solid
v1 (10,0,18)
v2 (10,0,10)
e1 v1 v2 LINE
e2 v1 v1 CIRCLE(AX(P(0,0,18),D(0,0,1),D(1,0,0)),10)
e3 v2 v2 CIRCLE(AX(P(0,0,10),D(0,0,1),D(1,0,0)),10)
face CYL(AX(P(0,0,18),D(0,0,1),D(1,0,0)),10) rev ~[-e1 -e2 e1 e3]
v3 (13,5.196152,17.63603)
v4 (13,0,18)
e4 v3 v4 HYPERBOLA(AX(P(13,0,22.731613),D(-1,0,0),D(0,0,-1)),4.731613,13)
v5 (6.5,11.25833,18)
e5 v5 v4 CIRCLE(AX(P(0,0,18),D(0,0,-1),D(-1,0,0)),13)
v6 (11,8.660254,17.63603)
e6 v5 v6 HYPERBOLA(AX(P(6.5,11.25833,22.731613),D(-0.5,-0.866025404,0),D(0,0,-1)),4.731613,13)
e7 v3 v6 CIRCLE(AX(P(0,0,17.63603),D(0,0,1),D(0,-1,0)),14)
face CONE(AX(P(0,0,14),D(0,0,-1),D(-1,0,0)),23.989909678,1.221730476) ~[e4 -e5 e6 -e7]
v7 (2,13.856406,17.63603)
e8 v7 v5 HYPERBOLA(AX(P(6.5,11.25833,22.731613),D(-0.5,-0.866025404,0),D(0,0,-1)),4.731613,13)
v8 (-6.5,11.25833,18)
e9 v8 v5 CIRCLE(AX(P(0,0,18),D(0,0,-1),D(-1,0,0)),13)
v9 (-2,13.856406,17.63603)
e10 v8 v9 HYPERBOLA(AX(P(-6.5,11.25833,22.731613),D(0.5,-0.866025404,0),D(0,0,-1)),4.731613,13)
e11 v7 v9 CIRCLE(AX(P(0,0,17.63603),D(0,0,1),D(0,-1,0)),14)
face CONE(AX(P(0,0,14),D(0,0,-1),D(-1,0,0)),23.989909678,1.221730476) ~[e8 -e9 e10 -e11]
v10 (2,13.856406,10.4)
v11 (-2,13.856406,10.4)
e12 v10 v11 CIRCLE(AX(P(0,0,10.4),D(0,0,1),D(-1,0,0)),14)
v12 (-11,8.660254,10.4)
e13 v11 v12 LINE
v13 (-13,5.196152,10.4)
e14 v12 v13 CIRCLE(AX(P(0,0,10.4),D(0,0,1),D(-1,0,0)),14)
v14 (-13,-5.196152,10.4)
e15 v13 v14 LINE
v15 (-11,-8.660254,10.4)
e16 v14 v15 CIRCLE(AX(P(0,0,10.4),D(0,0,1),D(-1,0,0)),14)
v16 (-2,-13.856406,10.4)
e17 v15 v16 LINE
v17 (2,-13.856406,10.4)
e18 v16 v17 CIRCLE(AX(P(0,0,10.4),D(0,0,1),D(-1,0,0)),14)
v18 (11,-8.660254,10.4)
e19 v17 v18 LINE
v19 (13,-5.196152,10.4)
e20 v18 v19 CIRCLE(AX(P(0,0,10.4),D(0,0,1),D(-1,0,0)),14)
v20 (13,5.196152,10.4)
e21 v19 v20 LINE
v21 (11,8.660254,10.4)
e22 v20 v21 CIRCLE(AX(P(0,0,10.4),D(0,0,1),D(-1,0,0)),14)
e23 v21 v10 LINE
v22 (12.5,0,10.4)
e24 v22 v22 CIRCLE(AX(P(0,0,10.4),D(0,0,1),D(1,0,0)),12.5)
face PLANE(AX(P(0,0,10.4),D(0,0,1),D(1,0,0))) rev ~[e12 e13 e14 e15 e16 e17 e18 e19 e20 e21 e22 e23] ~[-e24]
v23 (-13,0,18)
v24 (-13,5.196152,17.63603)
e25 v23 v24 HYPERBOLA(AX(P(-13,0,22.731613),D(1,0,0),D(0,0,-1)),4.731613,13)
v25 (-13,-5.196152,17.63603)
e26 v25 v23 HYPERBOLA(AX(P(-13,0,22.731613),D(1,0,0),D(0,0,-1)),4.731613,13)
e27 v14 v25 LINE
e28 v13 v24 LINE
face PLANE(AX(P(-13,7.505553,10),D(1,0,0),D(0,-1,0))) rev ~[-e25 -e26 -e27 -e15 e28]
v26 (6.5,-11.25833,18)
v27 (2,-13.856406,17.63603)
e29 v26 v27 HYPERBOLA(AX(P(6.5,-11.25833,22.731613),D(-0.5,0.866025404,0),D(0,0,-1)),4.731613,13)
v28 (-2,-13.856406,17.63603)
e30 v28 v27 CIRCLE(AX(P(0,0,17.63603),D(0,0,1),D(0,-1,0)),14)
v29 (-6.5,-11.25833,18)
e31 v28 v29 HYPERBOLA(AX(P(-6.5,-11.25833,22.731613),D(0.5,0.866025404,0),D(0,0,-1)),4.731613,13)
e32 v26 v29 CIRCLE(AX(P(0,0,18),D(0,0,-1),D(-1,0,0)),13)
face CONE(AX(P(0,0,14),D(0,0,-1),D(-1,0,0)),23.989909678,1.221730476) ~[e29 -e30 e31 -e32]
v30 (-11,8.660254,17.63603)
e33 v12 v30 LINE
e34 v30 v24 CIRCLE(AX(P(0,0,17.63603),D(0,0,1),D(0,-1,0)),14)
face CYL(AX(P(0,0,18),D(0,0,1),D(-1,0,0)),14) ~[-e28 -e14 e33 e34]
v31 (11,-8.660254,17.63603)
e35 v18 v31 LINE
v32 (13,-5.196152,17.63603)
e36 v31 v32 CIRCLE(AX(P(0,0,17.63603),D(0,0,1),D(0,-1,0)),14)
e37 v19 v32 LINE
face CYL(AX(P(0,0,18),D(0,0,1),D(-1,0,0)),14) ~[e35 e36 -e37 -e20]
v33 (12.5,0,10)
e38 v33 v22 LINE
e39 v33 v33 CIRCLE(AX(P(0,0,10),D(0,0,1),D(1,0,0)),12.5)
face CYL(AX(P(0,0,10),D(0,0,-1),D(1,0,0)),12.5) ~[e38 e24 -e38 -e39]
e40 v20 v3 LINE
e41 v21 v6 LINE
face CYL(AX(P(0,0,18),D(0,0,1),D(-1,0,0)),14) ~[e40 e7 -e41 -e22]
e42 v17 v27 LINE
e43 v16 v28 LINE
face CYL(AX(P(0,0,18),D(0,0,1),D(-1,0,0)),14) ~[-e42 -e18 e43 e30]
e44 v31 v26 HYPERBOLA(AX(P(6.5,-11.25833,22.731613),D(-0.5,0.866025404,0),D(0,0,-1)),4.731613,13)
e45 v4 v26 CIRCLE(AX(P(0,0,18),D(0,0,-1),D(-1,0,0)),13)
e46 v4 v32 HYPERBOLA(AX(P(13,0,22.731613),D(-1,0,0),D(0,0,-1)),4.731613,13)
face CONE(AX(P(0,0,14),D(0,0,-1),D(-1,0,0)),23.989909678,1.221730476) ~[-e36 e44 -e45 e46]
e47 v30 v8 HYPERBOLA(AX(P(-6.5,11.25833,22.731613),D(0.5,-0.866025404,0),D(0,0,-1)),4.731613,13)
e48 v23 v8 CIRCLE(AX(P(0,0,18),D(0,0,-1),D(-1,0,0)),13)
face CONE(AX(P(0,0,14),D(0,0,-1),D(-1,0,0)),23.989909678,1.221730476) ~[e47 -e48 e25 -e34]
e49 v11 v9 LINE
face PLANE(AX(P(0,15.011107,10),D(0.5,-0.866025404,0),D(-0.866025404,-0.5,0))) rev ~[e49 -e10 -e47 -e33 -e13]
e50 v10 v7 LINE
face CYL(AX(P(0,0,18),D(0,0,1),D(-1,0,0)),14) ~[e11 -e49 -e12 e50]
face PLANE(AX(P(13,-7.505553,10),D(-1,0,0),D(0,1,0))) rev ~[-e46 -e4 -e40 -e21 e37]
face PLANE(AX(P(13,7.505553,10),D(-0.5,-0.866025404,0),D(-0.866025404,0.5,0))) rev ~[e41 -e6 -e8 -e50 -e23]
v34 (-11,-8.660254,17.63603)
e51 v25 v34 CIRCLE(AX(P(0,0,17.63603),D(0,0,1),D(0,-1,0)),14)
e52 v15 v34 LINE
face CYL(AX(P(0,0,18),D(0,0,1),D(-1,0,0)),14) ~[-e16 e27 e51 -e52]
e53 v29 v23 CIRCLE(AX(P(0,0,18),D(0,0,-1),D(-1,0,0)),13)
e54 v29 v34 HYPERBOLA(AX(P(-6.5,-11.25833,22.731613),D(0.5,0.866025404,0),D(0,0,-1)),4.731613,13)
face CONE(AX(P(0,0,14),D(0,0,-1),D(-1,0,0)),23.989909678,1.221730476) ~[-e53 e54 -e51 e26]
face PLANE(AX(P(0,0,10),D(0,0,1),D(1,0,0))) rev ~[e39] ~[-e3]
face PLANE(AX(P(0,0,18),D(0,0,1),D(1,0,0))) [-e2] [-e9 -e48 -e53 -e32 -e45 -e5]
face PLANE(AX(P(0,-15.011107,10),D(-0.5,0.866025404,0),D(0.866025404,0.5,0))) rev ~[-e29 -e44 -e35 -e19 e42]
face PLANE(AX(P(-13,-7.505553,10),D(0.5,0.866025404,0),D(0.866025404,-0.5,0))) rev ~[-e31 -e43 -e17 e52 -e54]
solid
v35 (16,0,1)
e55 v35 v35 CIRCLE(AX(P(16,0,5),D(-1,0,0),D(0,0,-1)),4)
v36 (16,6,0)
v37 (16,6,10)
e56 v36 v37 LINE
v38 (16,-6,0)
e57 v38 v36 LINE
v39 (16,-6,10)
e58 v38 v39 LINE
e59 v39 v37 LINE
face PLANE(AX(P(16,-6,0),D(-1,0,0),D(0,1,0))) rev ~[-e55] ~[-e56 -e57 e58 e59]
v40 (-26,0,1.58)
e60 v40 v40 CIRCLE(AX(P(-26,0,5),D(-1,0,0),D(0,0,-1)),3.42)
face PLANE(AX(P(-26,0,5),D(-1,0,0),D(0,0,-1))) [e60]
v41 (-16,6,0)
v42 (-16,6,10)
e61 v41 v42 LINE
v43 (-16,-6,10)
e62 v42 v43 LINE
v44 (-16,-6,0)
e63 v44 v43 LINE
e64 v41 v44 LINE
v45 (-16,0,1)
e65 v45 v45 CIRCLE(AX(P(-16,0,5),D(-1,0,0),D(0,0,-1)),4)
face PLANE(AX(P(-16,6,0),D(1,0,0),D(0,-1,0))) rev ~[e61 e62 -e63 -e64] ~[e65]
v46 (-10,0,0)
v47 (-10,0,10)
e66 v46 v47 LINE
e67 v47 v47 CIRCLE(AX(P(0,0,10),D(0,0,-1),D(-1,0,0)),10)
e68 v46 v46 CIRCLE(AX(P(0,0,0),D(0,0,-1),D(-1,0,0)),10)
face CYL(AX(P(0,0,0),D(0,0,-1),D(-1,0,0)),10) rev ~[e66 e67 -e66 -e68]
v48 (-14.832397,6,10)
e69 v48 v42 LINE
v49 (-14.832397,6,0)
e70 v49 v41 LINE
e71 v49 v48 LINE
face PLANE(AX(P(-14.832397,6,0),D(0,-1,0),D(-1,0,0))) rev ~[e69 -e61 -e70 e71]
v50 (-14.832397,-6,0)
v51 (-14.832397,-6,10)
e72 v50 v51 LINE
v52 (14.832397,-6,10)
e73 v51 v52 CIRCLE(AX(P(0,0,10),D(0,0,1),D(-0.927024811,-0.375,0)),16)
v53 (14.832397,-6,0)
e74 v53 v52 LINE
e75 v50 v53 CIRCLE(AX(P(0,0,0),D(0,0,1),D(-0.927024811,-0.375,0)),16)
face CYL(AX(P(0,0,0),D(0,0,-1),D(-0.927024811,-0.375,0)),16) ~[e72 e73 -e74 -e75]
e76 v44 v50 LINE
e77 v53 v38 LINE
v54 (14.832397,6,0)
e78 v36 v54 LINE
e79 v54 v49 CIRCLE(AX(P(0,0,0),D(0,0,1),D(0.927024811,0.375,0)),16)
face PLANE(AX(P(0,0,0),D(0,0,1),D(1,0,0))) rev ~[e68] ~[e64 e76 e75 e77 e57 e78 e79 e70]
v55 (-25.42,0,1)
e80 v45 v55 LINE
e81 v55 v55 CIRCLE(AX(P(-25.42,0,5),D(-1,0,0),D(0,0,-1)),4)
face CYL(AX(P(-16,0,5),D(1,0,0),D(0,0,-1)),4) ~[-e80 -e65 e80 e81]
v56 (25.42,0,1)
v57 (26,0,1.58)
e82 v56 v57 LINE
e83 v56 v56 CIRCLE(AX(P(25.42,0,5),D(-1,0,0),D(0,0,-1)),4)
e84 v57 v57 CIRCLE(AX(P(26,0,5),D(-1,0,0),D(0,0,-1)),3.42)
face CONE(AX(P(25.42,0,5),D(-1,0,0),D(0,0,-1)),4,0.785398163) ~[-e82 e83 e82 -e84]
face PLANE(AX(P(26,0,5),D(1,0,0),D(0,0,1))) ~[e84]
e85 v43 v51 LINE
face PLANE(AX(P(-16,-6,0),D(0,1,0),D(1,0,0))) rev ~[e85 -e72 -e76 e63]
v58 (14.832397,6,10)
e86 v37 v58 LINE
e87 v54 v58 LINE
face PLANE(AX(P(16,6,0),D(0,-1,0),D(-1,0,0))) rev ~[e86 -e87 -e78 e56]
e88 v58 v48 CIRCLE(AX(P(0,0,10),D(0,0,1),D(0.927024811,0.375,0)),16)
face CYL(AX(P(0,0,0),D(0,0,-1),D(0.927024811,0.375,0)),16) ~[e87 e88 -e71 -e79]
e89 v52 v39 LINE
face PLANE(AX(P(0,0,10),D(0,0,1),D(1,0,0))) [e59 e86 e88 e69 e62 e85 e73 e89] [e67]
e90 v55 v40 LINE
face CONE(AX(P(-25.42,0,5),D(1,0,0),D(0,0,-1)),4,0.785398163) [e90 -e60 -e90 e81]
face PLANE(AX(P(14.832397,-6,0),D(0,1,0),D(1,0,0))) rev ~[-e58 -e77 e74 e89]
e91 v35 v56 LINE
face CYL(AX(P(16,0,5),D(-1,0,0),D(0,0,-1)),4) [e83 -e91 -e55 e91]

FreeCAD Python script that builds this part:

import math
import FreeCAD as App
import Part
import Sketcher
from FreeCAD import Vector
Q = App.Units.Quantity


def edges_at(feature, points):
    """Names of the edges that pass closest to the given points."""
    edges = feature.Shape.Edges
    near = lambda p: min(range(len(edges)), key=lambda i: edges[i].distToShape(Part.Vertex(*p))[0])
    return sorted({f"Edge{near(p) + 1}" for p in points})


def add_polygon(sketch, points):
    """Adds a closed chain of lines whose ends are joined by coincident constraints."""
    first, n = sketch.GeometryCount, len(points)
    for a, b in zip(points, points[1:] + points[:1]):
        sketch.addGeometry(Part.LineSegment(App.Vector(*a, 0), App.Vector(*b, 0)), False)
    for i in range(n):
        sketch.addConstraint(Sketcher.Constraint("Coincident", first + i, 2, first + (i + 1) % n, 1))

doc = App.newDocument("Part")
params = doc.addObject("Spreadsheet::Sheet", "Params")
for row, (alias, value) in enumerate([
    ("sketch1_radius", "16 mm"),
    ("sketch1_height", "12 mm"),
    ("pad1_length", "10 mm"),
    ("sketch2_diameter", "8 mm"),
    ("pad2_length", "10 mm"),
    ("sketch3_diameter", "20 mm"),
    ("chamfer_size", "0.58 mm"),
    ("pad3_length", "8 mm"),
    ("sketch5_height", "4 mm"),
    ("groove_angle", "360 deg"),
    ("sketch6_diameter", "25 mm"),
    ("pocket2_length", "0.4 mm"),
    ("sketch7_diameter", "28 mm"),
    ("pocket3_length", "8 mm"),
    ("sketch8_diameter", "20 mm"),
], start=1):
    params.set(f"A{row}", alias)
    params.set(f"B{row}", "=" + value)
    params.setAlias(f"B{row}", alias)

body = doc.addObject("PartDesign::Body", "Body")

sketch1 = body.newObject("Sketcher::SketchObject", "Sketch")
sketch1.AttachmentSupport = (doc.getObject("XY_Plane"), [""])
sketch1.MapMode = "FlatFace"
sketch1.addGeometry(Part.LineSegment(Vector(-16, 6, 0), Vector(-16, -6, 0)), False)
sketch1.addGeometry(Part.LineSegment(Vector(-16, -6, 0), Vector(-14.8, -6, 0)), False)
sketch1.addGeometry(Part.ArcOfCircle(Part.Circle(Vector(0, 0, 0), Vector(0, 0, 1), 16), math.radians(-158), math.radians(-22)), False)
sketch1.addGeometry(Part.LineSegment(Vector(14.8, -6, 0), Vector(16, -6, 0)), False)
sketch1.addGeometry(Part.LineSegment(Vector(16, -6, 0), Vector(16, 6, 0)), False)
sketch1.addGeometry(Part.LineSegment(Vector(16, 6, 0), Vector(14.8, 6, 0)), False)
sketch1.addGeometry(Part.ArcOfCircle(Part.Circle(Vector(0, 0, 0), Vector(0, 0, 1), 16), math.radians(22), math.radians(158)), False)
sketch1.addGeometry(Part.LineSegment(Vector(-14.8, 6, 0), Vector(-16, 6, 0)), False)
sketch1.addConstraint(Sketcher.Constraint("Coincident", 0, 2, 1, 1))
sketch1.addConstraint(Sketcher.Constraint("Coincident", 1, 2, 2, 1))
sketch1.addConstraint(Sketcher.Constraint("Coincident", 2, 2, 3, 1))
sketch1.addConstraint(Sketcher.Constraint("Coincident", 3, 2, 4, 1))
sketch1.addConstraint(Sketcher.Constraint("Coincident", 4, 2, 5, 1))
sketch1.addConstraint(Sketcher.Constraint("Coincident", 5, 2, 6, 1))
sketch1.addConstraint(Sketcher.Constraint("Coincident", 6, 2, 7, 1))
sketch1.addConstraint(Sketcher.Constraint("Coincident", 7, 2, 0, 1))
sketch1.addConstraint(Sketcher.Constraint("Vertical", 0))
sketch1.addConstraint(Sketcher.Constraint("Horizontal", 1))
sketch1.addConstraint(Sketcher.Constraint("Horizontal", 3))
sketch1.addConstraint(Sketcher.Constraint("Vertical", 4))
sketch1.addConstraint(Sketcher.Constraint("Horizontal", 5))
sketch1.addConstraint(Sketcher.Constraint("Horizontal", 7))
sketch1.addConstraint(Sketcher.Constraint("Coincident", 2, 3, -1, 1))
sketch1.addConstraint(Sketcher.Constraint("Coincident", 6, 3, -1, 1))
sketch1.addConstraint(Sketcher.Constraint("Equal", 2, 6))
sketch1.addConstraint(Sketcher.Constraint("Symmetric", 0, 2, 4, 2, -1, 1))
sketch1.addConstraint(Sketcher.Constraint("Horizontal", 1, 2, 2, 2))
sketch1.addConstraint(Sketcher.Constraint("Horizontal", 5, 2, 6, 2))
sketch1.addConstraint(Sketcher.Constraint("Radius", 2, Q("16 mm")))
sketch1.addConstraint(Sketcher.Constraint("DistanceY", 0, 2, 0, 1, Q("12 mm")))
sketch1.addConstraint(Sketcher.Constraint("DistanceX", 0, 2, -1, 1, Q("16 mm")))
sketch1.setExpression("Constraints[20]", "Params.sketch1_radius")
sketch1.setExpression("Constraints[21]", "Params.sketch1_height")
pad1 = body.newObject("PartDesign::Pad", "Pad")
pad1.Profile = sketch1
pad1.setExpression("Length", "Params.pad1_length")

sketch2 = body.newObject("Sketcher::SketchObject", "Sketch001")
sketch2.AttachmentSupport = (doc.getObject("YZ_Plane"), [""])
sketch2.MapMode = "FlatFace"
sketch2.AttachmentOffset = App.Placement(Vector(0, 0, -16), App.Rotation())
sketch2.addGeometry(Part.Circle(Vector(0, 5, 0), Vector(0, 0, 1), 4), False)
sketch2.addConstraint(Sketcher.Constraint("PointOnObject", 0, 3, -2))
sketch2.addConstraint(Sketcher.Constraint("Diameter", 0, Q("8 mm")))
sketch2.addConstraint(Sketcher.Constraint("DistanceY", -1, 1, 0, 3, Q("5 mm")))
sketch2.setExpression("Constraints[1]", "Params.sketch2_diameter")
pad2 = body.newObject("PartDesign::Pad", "Pad001")
pad2.Profile = sketch2
pad2.setExpression("Length", "Params.pad2_length")
pad2.Reversed = True
doc.recompute()

mirrored = body.newObject("PartDesign::Mirrored", "Mirrored")
mirrored.Originals = [pad2]
mirrored.MirrorPlane = (doc.getObject("YZ_Plane"), [""])
body.Tip = mirrored

sketch3 = body.newObject("Sketcher::SketchObject", "Sketch002")
sketch3.AttachmentSupport = (doc.getObject("XY_Plane"), [""])
sketch3.MapMode = "FlatFace"
sketch3.addGeometry(Part.Circle(Vector(0, 0, 0), Vector(0, 0, 1), 10), False)
sketch3.addConstraint(Sketcher.Constraint("Coincident", 0, 3, -1, 1))
sketch3.addConstraint(Sketcher.Constraint("Diameter", 0, Q("20 mm")))
sketch3.setExpression("Constraints[1]", "Params.sketch3_diameter")
pocket1 = body.newObject("PartDesign::Pocket", "Pocket")
pocket1.Profile = sketch3
pocket1.Type = "ThroughAll"
pocket1.Reversed = True
doc.recompute()

chamfer = body.newObject("PartDesign::Chamfer", "Chamfer")
chamfer.Base = (pocket1, edges_at(pocket1, [(-26, 0, 9), (26, 0, 9)]))
chamfer.setExpression("Size", "Params.chamfer_size")
body2 = doc.addObject("PartDesign::Body", "Body001")

sketch4 = body2.newObject("Sketcher::SketchObject", "Sketch003")
sketch4.AttachmentSupport = (doc.getObject("XY_Plane001"), [""])
sketch4.MapMode = "FlatFace"
sketch4.AttachmentOffset = App.Placement(Vector(0, 0, 10), App.Rotation())
add_polygon(sketch4, [(13, 8), (0, 15), (-13, 8), (-13, -8), (0, -15), (13, -8)])
sketch4.addConstraint(Sketcher.Constraint("Vertical", 2))
sketch4.addConstraint(Sketcher.Constraint("Vertical", 5))
sketch4.addConstraint(Sketcher.Constraint("Symmetric", 0, 2, 3, 2, -1, 1))
sketch4.addConstraint(Sketcher.Constraint("Symmetric", 1, 2, 4, 2, -1, 1))
sketch4.addConstraint(Sketcher.Constraint("PointOnObject", 0, 2, -2))
sketch4.addConstraint(Sketcher.Constraint("Parallel", 0, 3))
sketch4.addConstraint(Sketcher.Constraint("Horizontal", 2, 2, 4, 2))
sketch4.addConstraint(Sketcher.Constraint("Angle", 0, Q("150 deg")))
sketch4.addConstraint(Sketcher.Constraint("DistanceX", 1, 2, -1, 1, Q("13 mm")))
sketch4.addConstraint(Sketcher.Constraint("DistanceY", 2, 2, 2, 1, Q("15.011107 mm")))
pad3 = body2.newObject("PartDesign::Pad", "Pad002")
pad3.Profile = sketch4
pad3.setExpression("Length", "Params.pad3_length")

sketch5 = body2.newObject("Sketcher::SketchObject", "Sketch004")
sketch5.AttachmentSupport = (doc.getObject("XZ_Plane001"), [""])
sketch5.MapMode = "FlatFace"
add_polygon(sketch5, [(-24, 18), (-13, 18), (-24, 14)])
sketch5.addConstraint(Sketcher.Constraint("Horizontal", 0))
sketch5.addConstraint(Sketcher.Constraint("Vertical", 2))
sketch5.addConstraint(Sketcher.Constraint("DistanceY", 2, 1, 2, 2, Q("4 mm")))
sketch5.addConstraint(Sketcher.Constraint("Angle", 1, Q("-160 deg")))
sketch5.addConstraint(Sketcher.Constraint("DistanceX", 0, 2, -1, 1, Q("13 mm")))
sketch5.addConstraint(Sketcher.Constraint("DistanceY", -1, 1, 0, 2, Q("18 mm")))
sketch5.setExpression("Constraints[5]", "Params.sketch5_height")
groove = body2.newObject("PartDesign::Groove", "Groove")
groove.Profile = sketch5
groove.ReferenceAxis = (sketch5, ["V_Axis"])
groove.setExpression("Angle", "Params.groove_angle")

sketch6 = body2.newObject("Sketcher::SketchObject", "Sketch005")
sketch6.AttachmentSupport = (doc.getObject("XY_Plane001"), [""])
sketch6.MapMode = "FlatFace"
sketch6.AttachmentOffset = App.Placement(Vector(0, 0, 10), App.Rotation())
sketch6.addGeometry(Part.Circle(Vector(0, 0, 0), Vector(0, 0, 1), 15), False)
sketch6.addGeometry(Part.Circle(Vector(0, 0, 0), Vector(0, 0, 1), 12), False)
sketch6.addConstraint(Sketcher.Constraint("Coincident", 0, 3, -1, 1))
sketch6.addConstraint(Sketcher.Constraint("Coincident", 1, 3, -1, 1))
sketch6.addConstraint(Sketcher.Constraint("Diameter", 1, Q("25 mm")))
sketch6.addConstraint(Sketcher.Constraint("Diameter", 0, Q("30.022214 mm")))
sketch6.setExpression("Constraints[2]", "Params.sketch6_diameter")
pocket2 = body2.newObject("PartDesign::Pocket", "Pocket001")
pocket2.Profile = sketch6
pocket2.setExpression("Length", "Params.pocket2_length")
pocket2.Reversed = True

sketch7 = body2.newObject("Sketcher::SketchObject", "Sketch006")
sketch7.AttachmentSupport = (doc.getObject("XY_Plane001"), [""])
sketch7.MapMode = "FlatFace"
sketch7.AttachmentOffset = App.Placement(Vector(0, 0, 18), App.Rotation())
add_polygon(sketch7, [(33, 23), (33, -23), (-33, -23), (-33, 23)])
sketch7.addGeometry(Part.Circle(Vector(0, 0, 0), Vector(0, 0, 1), 14), False)
sketch7.addConstraint(Sketcher.Constraint("Vertical", 0))
sketch7.addConstraint(Sketcher.Constraint("Horizontal", 1))
sketch7.addConstraint(Sketcher.Constraint("Vertical", 2))
sketch7.addConstraint(Sketcher.Constraint("Horizontal", 3))
sketch7.addConstraint(Sketcher.Constraint("Coincident", 4, 3, -1, 1))
sketch7.addConstraint(Sketcher.Constraint("Symmetric", 0, 2, 2, 2, -1, 1))
sketch7.addConstraint(Sketcher.Constraint("Diameter", 4, Q("28 mm")))
sketch7.addConstraint(Sketcher.Constraint("DistanceX", 1, 2, 1, 1, Q("66.732 mm")))
sketch7.addConstraint(Sketcher.Constraint("DistanceY", 0, 2, 0, 1, Q("46.732 mm")))
sketch7.setExpression("Constraints[10]", "Params.sketch7_diameter")
pocket3 = body2.newObject("PartDesign::Pocket", "Pocket002")
pocket3.Profile = sketch7
pocket3.setExpression("Length", "Params.pocket3_length")

sketch8 = body2.newObject("Sketcher::SketchObject", "Sketch007")
sketch8.AttachmentSupport = (doc.getObject("XY_Plane001"), [""])
sketch8.MapMode = "FlatFace"
sketch8.AttachmentOffset = App.Placement(Vector(0, 0, 18), App.Rotation())
sketch8.addGeometry(Part.Circle(Vector(0, 0, 0), Vector(0, 0, 1), 10), False)
sketch8.addConstraint(Sketcher.Constraint("Coincident", 0, 3, -1, 1))
sketch8.addConstraint(Sketcher.Constraint("Diameter", 0, Q("20 mm")))
sketch8.setExpression("Constraints[1]", "Params.sketch8_diameter")
pocket4 = body2.newObject("PartDesign::Pocket", "Pocket003")
pocket4.Profile = sketch8
pocket4.Type = "ThroughAll"

doc.recompute()
